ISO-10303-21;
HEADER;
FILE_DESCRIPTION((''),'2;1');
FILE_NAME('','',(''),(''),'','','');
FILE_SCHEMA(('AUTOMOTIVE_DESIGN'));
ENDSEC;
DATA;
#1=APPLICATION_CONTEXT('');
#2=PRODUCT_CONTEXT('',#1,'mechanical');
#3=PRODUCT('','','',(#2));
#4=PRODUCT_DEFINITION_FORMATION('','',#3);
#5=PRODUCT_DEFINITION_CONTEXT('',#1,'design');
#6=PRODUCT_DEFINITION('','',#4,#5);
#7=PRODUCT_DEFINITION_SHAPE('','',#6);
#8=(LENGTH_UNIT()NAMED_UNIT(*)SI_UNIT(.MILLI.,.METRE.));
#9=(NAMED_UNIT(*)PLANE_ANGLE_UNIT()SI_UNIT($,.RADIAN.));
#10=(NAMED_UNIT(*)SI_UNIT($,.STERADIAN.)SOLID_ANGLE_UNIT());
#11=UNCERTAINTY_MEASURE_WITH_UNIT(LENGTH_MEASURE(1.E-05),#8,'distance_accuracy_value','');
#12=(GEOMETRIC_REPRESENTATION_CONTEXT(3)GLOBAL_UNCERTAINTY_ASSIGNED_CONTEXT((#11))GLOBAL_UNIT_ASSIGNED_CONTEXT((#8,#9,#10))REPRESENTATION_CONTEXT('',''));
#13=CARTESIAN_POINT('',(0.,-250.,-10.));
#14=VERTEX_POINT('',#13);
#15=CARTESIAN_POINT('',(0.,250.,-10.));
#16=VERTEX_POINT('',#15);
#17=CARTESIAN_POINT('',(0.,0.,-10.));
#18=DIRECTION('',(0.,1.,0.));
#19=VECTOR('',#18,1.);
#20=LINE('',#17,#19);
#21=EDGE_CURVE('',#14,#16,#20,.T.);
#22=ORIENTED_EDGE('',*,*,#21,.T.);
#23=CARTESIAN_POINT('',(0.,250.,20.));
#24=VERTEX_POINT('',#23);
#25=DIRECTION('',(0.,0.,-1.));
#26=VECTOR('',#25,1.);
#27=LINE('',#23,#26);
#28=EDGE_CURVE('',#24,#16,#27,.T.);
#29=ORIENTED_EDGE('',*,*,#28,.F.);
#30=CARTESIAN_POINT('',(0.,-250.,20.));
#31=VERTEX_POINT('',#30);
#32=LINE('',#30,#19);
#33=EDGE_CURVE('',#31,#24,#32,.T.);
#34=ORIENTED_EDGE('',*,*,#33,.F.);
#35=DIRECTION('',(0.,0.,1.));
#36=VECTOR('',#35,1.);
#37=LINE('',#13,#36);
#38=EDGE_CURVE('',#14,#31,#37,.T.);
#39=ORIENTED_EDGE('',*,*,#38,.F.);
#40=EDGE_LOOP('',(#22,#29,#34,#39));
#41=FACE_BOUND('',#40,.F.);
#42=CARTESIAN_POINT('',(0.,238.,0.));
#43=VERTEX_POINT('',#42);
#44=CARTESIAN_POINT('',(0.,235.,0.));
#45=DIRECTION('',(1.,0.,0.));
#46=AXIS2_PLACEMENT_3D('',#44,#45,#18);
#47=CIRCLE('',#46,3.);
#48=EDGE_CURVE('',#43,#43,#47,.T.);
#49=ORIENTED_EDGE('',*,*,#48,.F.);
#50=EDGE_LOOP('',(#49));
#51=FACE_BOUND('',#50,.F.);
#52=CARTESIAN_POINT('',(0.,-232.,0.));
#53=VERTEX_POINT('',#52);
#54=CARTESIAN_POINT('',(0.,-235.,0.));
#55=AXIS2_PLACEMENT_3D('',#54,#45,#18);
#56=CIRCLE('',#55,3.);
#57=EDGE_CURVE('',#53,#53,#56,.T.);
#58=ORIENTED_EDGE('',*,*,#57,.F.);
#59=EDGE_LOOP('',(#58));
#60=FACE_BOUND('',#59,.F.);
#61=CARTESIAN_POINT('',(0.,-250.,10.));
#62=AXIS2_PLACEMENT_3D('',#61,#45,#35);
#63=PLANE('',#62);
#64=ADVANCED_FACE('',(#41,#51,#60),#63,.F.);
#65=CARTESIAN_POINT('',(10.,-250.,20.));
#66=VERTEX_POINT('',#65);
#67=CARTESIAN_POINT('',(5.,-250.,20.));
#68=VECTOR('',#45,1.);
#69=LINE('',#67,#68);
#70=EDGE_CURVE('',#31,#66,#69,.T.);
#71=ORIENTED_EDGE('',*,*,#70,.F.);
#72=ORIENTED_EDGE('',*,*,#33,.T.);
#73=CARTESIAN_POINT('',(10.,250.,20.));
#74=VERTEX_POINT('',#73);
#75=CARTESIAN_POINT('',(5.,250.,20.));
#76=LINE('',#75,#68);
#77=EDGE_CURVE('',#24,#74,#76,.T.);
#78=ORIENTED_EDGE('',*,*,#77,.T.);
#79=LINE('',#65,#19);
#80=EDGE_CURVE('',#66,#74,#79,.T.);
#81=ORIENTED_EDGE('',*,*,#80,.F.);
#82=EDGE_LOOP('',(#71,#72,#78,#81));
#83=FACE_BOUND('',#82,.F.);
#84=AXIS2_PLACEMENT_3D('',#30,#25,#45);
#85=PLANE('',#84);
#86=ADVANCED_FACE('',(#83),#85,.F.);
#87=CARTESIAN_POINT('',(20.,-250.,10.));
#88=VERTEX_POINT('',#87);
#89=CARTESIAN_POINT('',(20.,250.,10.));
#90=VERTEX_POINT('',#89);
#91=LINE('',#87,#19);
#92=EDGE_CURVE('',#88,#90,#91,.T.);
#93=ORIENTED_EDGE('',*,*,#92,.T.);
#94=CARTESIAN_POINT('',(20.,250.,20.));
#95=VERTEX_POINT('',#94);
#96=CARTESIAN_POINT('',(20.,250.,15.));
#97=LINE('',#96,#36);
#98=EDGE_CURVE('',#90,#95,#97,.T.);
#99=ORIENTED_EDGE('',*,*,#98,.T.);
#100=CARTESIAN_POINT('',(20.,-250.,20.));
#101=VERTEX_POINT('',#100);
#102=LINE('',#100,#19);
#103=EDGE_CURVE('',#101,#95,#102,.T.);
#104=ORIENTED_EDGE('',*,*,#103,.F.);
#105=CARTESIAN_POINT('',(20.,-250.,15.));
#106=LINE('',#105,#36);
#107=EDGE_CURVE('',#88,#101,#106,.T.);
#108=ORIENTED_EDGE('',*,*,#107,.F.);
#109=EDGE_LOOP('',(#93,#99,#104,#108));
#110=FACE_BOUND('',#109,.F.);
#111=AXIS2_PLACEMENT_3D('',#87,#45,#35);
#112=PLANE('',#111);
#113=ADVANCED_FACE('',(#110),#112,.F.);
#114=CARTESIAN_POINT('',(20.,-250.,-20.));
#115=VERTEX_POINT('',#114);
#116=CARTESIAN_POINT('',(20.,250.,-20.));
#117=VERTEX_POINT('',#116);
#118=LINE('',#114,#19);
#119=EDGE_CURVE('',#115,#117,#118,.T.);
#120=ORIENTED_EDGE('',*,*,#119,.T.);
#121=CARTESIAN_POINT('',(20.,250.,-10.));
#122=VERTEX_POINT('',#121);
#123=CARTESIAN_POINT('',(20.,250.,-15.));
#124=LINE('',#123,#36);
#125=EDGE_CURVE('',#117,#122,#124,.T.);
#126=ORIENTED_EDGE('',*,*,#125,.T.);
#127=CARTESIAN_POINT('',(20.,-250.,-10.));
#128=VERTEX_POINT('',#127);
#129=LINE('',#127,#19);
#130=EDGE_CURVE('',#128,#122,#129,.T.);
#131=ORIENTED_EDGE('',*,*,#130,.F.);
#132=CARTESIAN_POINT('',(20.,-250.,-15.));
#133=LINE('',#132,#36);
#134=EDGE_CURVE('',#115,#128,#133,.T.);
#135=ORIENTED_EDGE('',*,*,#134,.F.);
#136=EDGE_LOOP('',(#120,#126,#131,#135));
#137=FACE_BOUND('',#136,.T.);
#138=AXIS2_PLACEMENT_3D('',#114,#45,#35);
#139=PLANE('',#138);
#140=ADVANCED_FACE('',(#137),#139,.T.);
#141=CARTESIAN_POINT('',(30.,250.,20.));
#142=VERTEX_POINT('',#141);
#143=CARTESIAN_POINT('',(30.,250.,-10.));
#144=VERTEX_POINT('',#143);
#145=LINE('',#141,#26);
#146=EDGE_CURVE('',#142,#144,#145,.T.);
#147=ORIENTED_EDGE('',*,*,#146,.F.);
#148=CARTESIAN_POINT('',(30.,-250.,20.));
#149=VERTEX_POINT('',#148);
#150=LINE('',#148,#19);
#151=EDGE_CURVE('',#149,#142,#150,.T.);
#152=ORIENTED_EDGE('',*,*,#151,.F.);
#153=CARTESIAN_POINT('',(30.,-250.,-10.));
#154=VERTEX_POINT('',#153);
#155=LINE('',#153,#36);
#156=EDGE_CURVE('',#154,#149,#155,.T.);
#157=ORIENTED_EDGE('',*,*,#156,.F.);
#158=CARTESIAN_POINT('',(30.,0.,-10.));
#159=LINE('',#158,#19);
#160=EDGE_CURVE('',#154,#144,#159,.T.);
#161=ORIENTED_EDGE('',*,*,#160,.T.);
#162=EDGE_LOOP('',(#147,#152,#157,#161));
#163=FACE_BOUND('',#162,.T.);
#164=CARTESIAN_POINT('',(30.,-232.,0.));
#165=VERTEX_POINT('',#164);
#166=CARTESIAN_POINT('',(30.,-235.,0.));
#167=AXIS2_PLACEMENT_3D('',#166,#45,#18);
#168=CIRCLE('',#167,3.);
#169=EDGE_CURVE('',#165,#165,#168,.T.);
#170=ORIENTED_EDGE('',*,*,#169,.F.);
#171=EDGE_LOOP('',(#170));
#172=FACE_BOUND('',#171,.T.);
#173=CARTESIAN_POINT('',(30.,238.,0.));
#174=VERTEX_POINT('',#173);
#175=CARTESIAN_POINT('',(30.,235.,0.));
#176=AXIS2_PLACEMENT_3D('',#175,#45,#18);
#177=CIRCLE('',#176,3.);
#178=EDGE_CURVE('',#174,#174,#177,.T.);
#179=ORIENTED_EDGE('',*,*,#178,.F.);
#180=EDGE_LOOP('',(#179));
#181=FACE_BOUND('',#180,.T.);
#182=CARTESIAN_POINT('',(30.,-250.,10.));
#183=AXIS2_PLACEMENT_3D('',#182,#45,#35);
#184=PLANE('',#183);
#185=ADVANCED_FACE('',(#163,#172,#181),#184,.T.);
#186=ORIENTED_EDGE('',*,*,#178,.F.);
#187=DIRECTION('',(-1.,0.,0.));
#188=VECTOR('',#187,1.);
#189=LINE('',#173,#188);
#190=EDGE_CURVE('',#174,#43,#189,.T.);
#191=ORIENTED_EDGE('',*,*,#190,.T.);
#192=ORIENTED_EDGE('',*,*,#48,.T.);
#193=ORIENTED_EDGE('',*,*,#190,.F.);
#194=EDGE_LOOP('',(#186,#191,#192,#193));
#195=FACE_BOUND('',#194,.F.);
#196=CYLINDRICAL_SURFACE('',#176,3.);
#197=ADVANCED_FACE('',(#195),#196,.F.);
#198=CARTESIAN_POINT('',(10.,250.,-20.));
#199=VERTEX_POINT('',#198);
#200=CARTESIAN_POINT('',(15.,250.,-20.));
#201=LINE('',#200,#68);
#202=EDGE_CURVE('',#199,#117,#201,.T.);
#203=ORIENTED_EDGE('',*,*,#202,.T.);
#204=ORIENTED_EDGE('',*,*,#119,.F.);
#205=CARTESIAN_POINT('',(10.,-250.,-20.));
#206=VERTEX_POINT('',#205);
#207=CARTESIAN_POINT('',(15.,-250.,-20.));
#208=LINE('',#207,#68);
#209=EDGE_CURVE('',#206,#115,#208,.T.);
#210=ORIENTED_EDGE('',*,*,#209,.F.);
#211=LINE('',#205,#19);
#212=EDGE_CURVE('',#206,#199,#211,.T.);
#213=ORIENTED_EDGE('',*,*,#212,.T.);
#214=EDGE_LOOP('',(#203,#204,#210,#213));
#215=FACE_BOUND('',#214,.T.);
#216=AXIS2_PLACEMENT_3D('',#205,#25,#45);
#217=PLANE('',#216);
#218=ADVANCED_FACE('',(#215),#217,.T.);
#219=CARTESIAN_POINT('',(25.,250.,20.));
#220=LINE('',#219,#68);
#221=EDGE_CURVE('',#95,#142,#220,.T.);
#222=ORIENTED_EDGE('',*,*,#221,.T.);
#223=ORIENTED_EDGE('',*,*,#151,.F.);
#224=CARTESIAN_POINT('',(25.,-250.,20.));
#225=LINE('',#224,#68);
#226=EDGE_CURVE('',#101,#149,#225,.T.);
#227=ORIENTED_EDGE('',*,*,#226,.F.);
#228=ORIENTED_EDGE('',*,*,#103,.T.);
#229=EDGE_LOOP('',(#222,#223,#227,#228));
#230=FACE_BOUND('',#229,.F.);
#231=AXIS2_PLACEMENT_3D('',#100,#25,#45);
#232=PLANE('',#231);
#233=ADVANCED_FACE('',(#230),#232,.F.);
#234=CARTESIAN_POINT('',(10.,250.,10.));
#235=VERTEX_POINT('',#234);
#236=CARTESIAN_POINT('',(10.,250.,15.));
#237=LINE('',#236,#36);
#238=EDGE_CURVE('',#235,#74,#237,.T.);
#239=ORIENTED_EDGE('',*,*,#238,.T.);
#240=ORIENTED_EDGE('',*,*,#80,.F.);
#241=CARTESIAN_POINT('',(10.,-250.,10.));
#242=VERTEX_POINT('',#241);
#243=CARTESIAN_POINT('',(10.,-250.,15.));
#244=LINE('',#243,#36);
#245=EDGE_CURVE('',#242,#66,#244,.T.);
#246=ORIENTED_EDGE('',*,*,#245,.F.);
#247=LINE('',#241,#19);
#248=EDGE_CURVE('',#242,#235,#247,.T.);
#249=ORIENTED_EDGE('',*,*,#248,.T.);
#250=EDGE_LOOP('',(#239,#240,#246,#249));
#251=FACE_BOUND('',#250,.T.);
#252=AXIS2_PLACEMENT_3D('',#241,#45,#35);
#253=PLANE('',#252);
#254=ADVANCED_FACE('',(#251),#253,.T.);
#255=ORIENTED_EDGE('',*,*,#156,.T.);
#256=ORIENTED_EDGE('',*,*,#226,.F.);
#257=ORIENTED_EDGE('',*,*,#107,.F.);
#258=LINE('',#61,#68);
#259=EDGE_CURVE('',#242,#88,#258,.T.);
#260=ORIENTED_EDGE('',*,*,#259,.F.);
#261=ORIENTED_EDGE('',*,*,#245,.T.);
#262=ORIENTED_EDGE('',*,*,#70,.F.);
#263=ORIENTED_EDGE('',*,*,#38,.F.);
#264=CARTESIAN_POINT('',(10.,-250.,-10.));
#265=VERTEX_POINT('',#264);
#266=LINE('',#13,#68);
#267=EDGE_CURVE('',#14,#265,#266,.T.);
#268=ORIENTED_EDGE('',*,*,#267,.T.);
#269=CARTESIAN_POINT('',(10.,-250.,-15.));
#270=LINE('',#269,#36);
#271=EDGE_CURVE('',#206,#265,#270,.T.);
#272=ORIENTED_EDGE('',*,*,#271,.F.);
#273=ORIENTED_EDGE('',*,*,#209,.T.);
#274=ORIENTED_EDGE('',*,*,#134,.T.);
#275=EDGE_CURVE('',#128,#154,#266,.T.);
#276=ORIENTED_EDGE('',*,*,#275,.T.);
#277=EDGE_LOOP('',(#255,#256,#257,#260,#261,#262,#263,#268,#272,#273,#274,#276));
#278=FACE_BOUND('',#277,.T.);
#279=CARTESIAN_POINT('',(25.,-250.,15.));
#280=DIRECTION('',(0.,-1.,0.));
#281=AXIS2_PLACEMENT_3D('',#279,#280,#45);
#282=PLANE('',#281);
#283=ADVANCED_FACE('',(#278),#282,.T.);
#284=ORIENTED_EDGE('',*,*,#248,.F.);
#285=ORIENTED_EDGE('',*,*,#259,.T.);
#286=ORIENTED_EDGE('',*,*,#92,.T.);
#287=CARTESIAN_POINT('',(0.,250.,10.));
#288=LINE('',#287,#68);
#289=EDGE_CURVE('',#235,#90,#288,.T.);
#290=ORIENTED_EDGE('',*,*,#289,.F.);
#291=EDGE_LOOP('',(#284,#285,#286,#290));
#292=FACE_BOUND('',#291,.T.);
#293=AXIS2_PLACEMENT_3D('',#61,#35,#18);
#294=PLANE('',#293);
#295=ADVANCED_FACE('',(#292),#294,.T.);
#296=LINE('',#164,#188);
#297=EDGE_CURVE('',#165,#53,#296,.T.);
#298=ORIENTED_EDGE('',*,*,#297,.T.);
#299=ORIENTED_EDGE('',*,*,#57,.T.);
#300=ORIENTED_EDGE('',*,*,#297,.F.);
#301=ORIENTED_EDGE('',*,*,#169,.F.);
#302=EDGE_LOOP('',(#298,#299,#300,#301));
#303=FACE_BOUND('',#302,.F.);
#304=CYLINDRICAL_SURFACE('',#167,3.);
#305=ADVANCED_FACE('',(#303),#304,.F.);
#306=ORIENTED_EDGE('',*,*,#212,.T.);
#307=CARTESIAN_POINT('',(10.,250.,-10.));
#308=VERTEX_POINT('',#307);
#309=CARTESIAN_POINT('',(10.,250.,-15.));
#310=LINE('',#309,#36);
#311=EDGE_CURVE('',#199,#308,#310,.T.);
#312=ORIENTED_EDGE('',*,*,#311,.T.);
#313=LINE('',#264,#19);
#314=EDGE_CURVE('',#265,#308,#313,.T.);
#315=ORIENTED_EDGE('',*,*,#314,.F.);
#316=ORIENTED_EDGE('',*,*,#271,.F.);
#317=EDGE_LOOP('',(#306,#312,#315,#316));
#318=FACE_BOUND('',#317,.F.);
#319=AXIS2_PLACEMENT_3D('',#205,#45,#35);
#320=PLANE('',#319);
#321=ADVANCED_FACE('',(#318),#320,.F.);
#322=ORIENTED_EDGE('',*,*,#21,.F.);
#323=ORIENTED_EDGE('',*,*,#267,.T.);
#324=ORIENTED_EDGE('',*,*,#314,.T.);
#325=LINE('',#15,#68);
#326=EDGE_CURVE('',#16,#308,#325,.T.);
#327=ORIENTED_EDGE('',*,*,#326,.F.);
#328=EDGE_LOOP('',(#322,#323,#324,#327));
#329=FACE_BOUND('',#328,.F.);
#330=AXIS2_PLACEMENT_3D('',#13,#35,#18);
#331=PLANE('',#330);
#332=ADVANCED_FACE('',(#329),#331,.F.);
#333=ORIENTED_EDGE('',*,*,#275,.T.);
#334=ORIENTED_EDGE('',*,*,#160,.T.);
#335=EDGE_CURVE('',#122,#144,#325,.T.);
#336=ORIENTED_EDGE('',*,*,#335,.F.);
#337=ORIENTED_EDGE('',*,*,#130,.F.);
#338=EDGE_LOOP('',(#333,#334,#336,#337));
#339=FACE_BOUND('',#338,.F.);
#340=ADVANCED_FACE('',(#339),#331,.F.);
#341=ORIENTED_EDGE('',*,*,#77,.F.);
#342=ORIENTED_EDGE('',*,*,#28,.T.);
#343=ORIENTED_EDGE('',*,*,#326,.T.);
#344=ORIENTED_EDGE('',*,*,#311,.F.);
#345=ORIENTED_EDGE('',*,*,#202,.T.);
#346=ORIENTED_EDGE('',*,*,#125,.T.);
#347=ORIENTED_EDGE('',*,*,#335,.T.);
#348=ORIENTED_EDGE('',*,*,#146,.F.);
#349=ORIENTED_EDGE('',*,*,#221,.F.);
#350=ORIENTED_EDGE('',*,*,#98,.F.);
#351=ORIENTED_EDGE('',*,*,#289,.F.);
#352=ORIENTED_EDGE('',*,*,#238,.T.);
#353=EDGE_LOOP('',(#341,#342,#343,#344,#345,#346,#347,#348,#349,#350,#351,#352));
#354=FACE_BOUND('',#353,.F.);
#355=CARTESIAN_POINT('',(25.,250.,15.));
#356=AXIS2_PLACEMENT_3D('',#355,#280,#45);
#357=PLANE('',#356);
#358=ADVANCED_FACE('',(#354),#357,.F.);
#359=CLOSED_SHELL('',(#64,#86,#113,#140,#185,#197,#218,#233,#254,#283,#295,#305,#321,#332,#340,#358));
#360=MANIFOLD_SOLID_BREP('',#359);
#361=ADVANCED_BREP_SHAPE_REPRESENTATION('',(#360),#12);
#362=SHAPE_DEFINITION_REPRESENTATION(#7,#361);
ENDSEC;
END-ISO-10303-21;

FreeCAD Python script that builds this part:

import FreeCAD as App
import Part
import Sketcher

doc = App.newDocument("Part")
body = doc.addObject("PartDesign::Body", "Body")

# Sketch on YZ plane
sketch1 = doc.addObject("Sketcher::SketchObject", "Sketch")
body.addObject(sketch1)
sketch1.AttachmentSupport = (doc.YZ_Plane, [""])
sketch1.MapMode = "FlatFace"
sketch1.addGeometry([
    Part.LineSegment(App.Vector(-250, 10, 0), App.Vector(-250, -10, 0)),
    Part.LineSegment(App.Vector(-250, -10, 0), App.Vector(250, -10, 0)),
    Part.LineSegment(App.Vector(250, -10, 0), App.Vector(250, 10, 0)),
    Part.LineSegment(App.Vector(250, 10, 0), App.Vector(-250, 10, 0)),
], False)
sketch1.addConstraint([
    Sketcher.Constraint("Coincident", 0, 2, 1, 1),
    Sketcher.Constraint("Coincident", 1, 2, 2, 1),
    Sketcher.Constraint("Coincident", 2, 2, 3, 1),
    Sketcher.Constraint("Coincident", 3, 2, 0, 1),
    Sketcher.Constraint("Vertical", 0),
    Sketcher.Constraint("Horizontal", 1),
    Sketcher.Constraint("Vertical", 2),
    Sketcher.Constraint("Horizontal", 3),
    Sketcher.Constraint("Symmetric", 0, 2, 2, 2, -1, 1),
    Sketcher.Constraint("DistanceX", 1, 1, 1, 2, 500.0),
    Sketcher.Constraint("DistanceY", 0, 2, 0, 1, 20.0),
])
pad1 = doc.addObject("PartDesign::Pad", "Pad")
body.addObject(pad1)
pad1.Profile = sketch1
pad1.Length = 30

# Sketch on XZ plane
sketch2 = doc.addObject("Sketcher::SketchObject", "Sketch001")
body.addObject(sketch2)
sketch2.AttachmentSupport = (doc.XZ_Plane, [""])
sketch2.MapMode = "FlatFace"
sketch2.AttachmentOffset = App.Placement(App.Vector(0, 0, 250), App.Rotation())
sketch2.addGeometry([
    Part.LineSegment(App.Vector(0, 20, 0), App.Vector(0, 10, 0)),
    Part.LineSegment(App.Vector(0, 10, 0), App.Vector(10, 10, 0)),
    Part.LineSegment(App.Vector(10, 10, 0), App.Vector(10, 20, 0)),
    Part.LineSegment(App.Vector(10, 20, 0), App.Vector(0, 20, 0)),
], False)
sketch2.addConstraint([
    Sketcher.Constraint("Coincident", 0, 2, 1, 1),
    Sketcher.Constraint("Coincident", 1, 2, 2, 1),
    Sketcher.Constraint("Coincident", 2, 2, 3, 1),
    Sketcher.Constraint("Coincident", 3, 2, 0, 1),
    Sketcher.Constraint("Vertical", 0),
    Sketcher.Constraint("Horizontal", 1),
    Sketcher.Constraint("Vertical", 2),
    Sketcher.Constraint("Horizontal", 3),
    Sketcher.Constraint("PointOnObject", 0, 2, -2),
    Sketcher.Constraint("Equal", 3, 0),
    Sketcher.Constraint("DistanceX", 1, 1, 1, 2, 10.0),
    Sketcher.Constraint("DistanceY", -1, 1, 0, 2, 10.0),
])
pad2 = doc.addObject("PartDesign::Pad", "Pad001")
body.addObject(pad2)
pad2.Profile = sketch2
pad2.Length = 500
pad2.Reversed = True

# Sketch on XZ plane
sketch3 = doc.addObject("Sketcher::SketchObject", "Sketch002")
body.addObject(sketch3)
sketch3.AttachmentSupport = (doc.XZ_Plane, [""])
sketch3.MapMode = "FlatFace"
sketch3.AttachmentOffset = App.Placement(App.Vector(0, 0, 250), App.Rotation())
sketch3.addGeometry([
    Part.LineSegment(App.Vector(20, 20, 0), App.Vector(20, 10, 0)),
    Part.LineSegment(App.Vector(20, 10, 0), App.Vector(30, 10, 0)),
    Part.LineSegment(App.Vector(30, 10, 0), App.Vector(30, 20, 0)),
    Part.LineSegment(App.Vector(30, 20, 0), App.Vector(20, 20, 0)),
], False)
sketch3.addConstraint([
    Sketcher.Constraint("Coincident", 0, 2, 1, 1),
    Sketcher.Constraint("Coincident", 1, 2, 2, 1),
    Sketcher.Constraint("Coincident", 2, 2, 3, 1),
    Sketcher.Constraint("Coincident", 3, 2, 0, 1),
    Sketcher.Constraint("Vertical", 0),
    Sketcher.Constraint("Horizontal", 1),
    Sketcher.Constraint("Vertical", 2),
    Sketcher.Constraint("Horizontal", 3),
    Sketcher.Constraint("Equal", 3, 0),
    Sketcher.Constraint("DistanceX", 1, 1, 1, 2, 10.0),
    Sketcher.Constraint("DistanceX", -1, 1, 0, 2, 20.0),
    Sketcher.Constraint("DistanceY", -1, 1, 0, 2, 10.0),
])
pad3 = doc.addObject("PartDesign::Pad", "Pad002")
body.addObject(pad3)
pad3.Profile = sketch3
pad3.Length = 500
pad3.Reversed = True

# Sketch on XZ plane
sketch4 = doc.addObject("Sketcher::SketchObject", "Sketch003")
body.addObject(sketch4)
sketch4.AttachmentSupport = (doc.XZ_Plane, [""])
sketch4.MapMode = "FlatFace"
sketch4.AttachmentOffset = App.Placement(App.Vector(0, 0, 250), App.Rotation())
sketch4.addGeometry([
    Part.LineSegment(App.Vector(10, -10, 0), App.Vector(10, -20, 0)),
    Part.LineSegment(App.Vector(10, -20, 0), App.Vector(20, -20, 0)),
    Part.LineSegment(App.Vector(20, -20, 0), App.Vector(20, -10, 0)),
    Part.LineSegment(App.Vector(20, -10, 0), App.Vector(10, -10, 0)),
], False)
sketch4.addConstraint([
    Sketcher.Constraint("Coincident", 0, 2, 1, 1),
    Sketcher.Constraint("Coincident", 1, 2, 2, 1),
    Sketcher.Constraint("Coincident", 2, 2, 3, 1),
    Sketcher.Constraint("Coincident", 3, 2, 0, 1),
    Sketcher.Constraint("Vertical", 0),
    Sketcher.Constraint("Horizontal", 1),
    Sketcher.Constraint("Vertical", 2),
    Sketcher.Constraint("Horizontal", 3),
    Sketcher.Constraint("Equal", 3, 0),
    Sketcher.Constraint("DistanceX", 1, 1, 1, 2, 10.0),
    Sketcher.Constraint("DistanceX", -1, 1, 0, 2, 10.0),
    Sketcher.Constraint("DistanceY", 0, 2, -1, 1, 20.0),
])
pad4 = doc.addObject("PartDesign::Pad", "Pad003")
body.addObject(pad4)
pad4.Profile = sketch4
pad4.Length = 500
pad4.Reversed = True

# Sketch on YZ plane
sketch5 = doc.addObject("Sketcher::SketchObject", "Sketch004")
body.addObject(sketch5)
sketch5.AttachmentSupport = (doc.YZ_Plane, [""])
sketch5.MapMode = "FlatFace"
sketch5.AttachmentOffset = App.Placement(App.Vector(0, 0, 30), App.Rotation())
sketch5.addGeometry([
    Part.Circle(App.Vector(-235, 0, 0), App.Vector(0, 0, 1), 3),
    Part.Circle(App.Vector(235, 0, 0), App.Vector(0, 0, 1), 3),
], False)
sketch5.addConstraint([
    Sketcher.Constraint("Equal", 0, 1),
    Sketcher.Constraint("Symmetric", 0, 3, 1, 3, -1, 1),
    Sketcher.Constraint("PointOnObject", 0, 3, -1),
    Sketcher.Constraint("Diameter", 0, 6.0),
    Sketcher.Constraint("DistanceX", 0, 3, -1, 1, 235.0),
])
pocket1 = doc.addObject("PartDesign::Pocket", "Pocket")
body.addObject(pocket1)
pocket1.Profile = sketch5
pocket1.Length = 30

doc.recompute()
